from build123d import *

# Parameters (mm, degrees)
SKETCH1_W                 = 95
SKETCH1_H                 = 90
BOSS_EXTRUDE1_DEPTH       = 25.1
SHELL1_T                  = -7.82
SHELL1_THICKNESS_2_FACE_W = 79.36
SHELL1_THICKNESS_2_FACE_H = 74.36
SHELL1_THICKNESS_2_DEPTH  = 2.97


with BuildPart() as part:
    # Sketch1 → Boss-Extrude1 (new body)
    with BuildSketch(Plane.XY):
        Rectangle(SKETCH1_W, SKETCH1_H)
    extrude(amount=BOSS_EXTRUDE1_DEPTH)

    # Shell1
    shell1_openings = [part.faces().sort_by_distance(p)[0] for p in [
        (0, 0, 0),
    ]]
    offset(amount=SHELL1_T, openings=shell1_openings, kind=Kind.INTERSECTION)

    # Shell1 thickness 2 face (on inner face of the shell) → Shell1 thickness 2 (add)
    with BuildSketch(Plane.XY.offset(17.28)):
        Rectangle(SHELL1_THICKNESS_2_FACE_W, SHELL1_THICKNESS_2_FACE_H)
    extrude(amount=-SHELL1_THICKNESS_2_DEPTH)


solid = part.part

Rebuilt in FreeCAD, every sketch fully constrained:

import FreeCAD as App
import Part
import Sketcher
Q = App.Units.Quantity


def faces_at(feature, points):
    """Names of the faces that lie closest to the given points."""
    faces = feature.Shape.Faces
    near = lambda p: min(range(len(faces)), key=lambda i: faces[i].distToShape(Part.Vertex(*p))[0])
    return sorted({f"Face{near(p) + 1}" for p in points})


def add_polygon(sketch, points):
    """Adds a closed chain of lines whose ends are joined by coincident constraints."""
    first, n = sketch.GeometryCount, len(points)
    for a, b in zip(points, points[1:] + points[:1]):
        sketch.addGeometry(Part.LineSegment(App.Vector(*a, 0), App.Vector(*b, 0)), False)
    for i in range(n):
        sketch.addConstraint(Sketcher.Constraint("Coincident", first + i, 2, first + (i + 1) % n, 1))

doc = App.newDocument("Part")
body = doc.addObject("PartDesign::Body", "Body")

sketch1 = doc.addObject("Sketcher::SketchObject", "Sketch")
body.addObject(sketch1)
sketch1.AttachmentSupport = (doc.XY_Plane, [""])
sketch1.MapMode = "FlatFace"
add_polygon(sketch1, [(-48, 45), (-48, -45), (48, -45), (48, 45)])
sketch1.addConstraint([
    Sketcher.Constraint("Vertical", 0),
    Sketcher.Constraint("Horizontal", 1),
    Sketcher.Constraint("Vertical", 2),
    Sketcher.Constraint("Horizontal", 3),
    Sketcher.Constraint("Symmetric", 0, 2, 2, 2, -1, 1),
    Sketcher.Constraint("DistanceX", 1, 1, 1, 2, Q("95 mm")),
    Sketcher.Constraint("DistanceY", 0, 2, 0, 1, Q("90 mm")),
])
pad1 = doc.addObject("PartDesign::Pad", "Pad")
body.addObject(pad1)
pad1.Profile = sketch1
pad1.Length = 25.1
doc.recompute()

thickness = doc.addObject("PartDesign::Thickness", "Thickness")
body.addObject(thickness)
thickness.Base = (pad1, faces_at(pad1, [(0, 0, 0)]))
thickness.Value = 7.82
thickness.Reversed = True
thickness.Join = "Intersection"

sketch2 = doc.addObject("Sketcher::SketchObject", "Sketch001")
body.addObject(sketch2)
sketch2.AttachmentSupport = (doc.XY_Plane, [""])
sketch2.MapMode = "FlatFace"
sketch2.AttachmentOffset = App.Placement(App.Vector(0, 0, 17.28), App.Rotation())
add_polygon(sketch2, [(-40, 37), (-40, -37), (40, -37), (40, 37)])
sketch2.addConstraint([
    Sketcher.Constraint("Vertical", 0),
    Sketcher.Constraint("Horizontal", 1),
    Sketcher.Constraint("Vertical", 2),
    Sketcher.Constraint("Horizontal", 3),
    Sketcher.Constraint("Symmetric", 0, 2, 2, 2, -1, 1),
    Sketcher.Constraint("DistanceX", 1, 1, 1, 2, Q("79.36 mm")),
    Sketcher.Constraint("DistanceY", 0, 2, 0, 1, Q("74.36 mm")),
])
pad2 = doc.addObject("PartDesign::Pad", "Pad001")
body.addObject(pad2)
pad2.Profile = sketch2
pad2.Length = 2.97
pad2.Reversed = True

doc.recompute()
